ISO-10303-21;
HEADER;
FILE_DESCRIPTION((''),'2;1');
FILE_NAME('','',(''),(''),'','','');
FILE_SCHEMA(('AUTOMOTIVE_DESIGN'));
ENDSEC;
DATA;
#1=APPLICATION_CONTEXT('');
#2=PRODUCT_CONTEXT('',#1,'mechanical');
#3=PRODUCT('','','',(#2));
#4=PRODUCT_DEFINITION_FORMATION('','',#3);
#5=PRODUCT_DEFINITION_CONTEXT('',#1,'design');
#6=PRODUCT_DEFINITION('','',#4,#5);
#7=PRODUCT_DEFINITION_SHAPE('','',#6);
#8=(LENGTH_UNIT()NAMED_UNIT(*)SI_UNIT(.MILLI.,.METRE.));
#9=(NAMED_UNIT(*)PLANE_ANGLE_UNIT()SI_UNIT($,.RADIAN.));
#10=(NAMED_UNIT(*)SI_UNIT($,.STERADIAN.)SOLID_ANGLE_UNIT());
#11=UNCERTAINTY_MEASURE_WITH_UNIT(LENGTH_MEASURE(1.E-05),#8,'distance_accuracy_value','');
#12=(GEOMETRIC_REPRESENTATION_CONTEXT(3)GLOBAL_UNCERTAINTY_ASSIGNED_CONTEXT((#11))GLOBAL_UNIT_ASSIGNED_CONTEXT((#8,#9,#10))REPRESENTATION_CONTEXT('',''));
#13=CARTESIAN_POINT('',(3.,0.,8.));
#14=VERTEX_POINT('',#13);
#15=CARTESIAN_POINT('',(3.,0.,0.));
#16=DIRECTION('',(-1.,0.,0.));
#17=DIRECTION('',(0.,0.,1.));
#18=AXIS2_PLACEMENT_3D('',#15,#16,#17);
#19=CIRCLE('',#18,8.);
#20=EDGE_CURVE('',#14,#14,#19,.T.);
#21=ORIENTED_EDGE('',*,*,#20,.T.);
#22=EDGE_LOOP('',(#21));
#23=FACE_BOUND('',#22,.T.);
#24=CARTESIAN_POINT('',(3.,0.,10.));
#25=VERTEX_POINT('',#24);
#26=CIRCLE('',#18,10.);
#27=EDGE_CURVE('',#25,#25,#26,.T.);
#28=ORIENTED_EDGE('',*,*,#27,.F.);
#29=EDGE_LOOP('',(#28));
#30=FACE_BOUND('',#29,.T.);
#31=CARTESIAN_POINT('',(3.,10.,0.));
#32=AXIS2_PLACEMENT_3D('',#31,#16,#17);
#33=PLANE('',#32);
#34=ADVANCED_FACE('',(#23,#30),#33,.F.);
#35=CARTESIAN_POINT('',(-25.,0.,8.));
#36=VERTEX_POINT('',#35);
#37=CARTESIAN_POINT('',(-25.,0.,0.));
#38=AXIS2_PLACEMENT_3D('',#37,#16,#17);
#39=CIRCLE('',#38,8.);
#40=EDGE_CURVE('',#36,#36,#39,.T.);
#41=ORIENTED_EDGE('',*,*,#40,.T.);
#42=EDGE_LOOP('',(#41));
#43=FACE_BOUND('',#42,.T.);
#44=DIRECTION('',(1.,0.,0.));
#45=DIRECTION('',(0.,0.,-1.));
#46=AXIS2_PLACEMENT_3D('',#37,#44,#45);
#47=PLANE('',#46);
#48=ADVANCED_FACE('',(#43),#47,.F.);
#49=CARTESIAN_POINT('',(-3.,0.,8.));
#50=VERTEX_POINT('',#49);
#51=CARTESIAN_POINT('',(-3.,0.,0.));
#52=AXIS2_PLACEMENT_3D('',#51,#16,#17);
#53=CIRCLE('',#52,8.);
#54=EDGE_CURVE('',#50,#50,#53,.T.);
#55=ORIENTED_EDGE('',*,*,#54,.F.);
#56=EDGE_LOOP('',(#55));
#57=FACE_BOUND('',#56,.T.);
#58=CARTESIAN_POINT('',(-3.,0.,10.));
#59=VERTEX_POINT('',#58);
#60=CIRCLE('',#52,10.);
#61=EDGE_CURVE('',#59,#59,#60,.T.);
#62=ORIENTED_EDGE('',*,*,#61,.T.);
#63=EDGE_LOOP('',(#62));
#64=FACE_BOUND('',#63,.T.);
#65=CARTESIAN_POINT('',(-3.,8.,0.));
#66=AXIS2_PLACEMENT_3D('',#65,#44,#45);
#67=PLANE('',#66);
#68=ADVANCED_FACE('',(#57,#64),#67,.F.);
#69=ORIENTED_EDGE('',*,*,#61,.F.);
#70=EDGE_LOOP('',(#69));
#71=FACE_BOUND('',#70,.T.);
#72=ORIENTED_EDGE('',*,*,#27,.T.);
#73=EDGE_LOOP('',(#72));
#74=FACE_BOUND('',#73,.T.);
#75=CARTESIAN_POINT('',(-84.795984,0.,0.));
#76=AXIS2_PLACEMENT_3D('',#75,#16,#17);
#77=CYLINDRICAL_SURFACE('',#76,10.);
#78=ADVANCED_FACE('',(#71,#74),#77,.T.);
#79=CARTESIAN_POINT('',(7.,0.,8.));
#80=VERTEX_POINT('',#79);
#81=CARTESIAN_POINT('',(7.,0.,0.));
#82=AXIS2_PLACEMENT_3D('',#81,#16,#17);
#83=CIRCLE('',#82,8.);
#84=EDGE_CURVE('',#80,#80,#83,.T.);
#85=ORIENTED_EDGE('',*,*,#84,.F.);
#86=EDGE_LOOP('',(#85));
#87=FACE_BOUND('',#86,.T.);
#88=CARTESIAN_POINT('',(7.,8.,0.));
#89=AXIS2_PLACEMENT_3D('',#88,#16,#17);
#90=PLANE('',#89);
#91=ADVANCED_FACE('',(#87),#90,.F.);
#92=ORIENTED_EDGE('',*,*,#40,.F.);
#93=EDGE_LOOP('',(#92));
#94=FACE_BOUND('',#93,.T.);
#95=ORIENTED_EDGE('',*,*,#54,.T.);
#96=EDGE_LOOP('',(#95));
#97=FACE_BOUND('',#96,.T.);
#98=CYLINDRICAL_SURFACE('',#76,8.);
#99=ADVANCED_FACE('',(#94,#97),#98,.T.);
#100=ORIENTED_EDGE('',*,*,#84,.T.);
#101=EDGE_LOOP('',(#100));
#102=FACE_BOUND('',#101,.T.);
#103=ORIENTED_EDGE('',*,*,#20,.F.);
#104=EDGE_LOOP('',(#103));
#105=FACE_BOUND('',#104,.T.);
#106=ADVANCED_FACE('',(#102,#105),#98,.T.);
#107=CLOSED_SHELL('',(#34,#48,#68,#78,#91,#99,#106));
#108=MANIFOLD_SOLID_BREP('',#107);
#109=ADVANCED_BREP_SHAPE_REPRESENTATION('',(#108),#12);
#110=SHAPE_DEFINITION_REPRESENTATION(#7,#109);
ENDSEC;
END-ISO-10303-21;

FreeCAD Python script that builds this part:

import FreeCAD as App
import Part
import Sketcher

V = App.Vector

doc = App.newDocument("Part")
body = doc.addObject("PartDesign::Body", "Body")

sketch1 = doc.addObject("Sketcher::SketchObject", "Sketch")
body.addObject(sketch1)
sketch1.AttachmentSupport = (doc.XY_Plane, [""])
sketch1.MapMode = "FlatFace"
sketch1.addGeometry([
    Part.LineSegment(V(-25, 8, 0), V(-25, 0, 0)),
    Part.LineSegment(V(-25, 0, 0), V(7, 0, 0)),
    Part.LineSegment(V(7, 0, 0), V(7, 8, 0)),
    Part.LineSegment(V(7, 8, 0), V(3, 8, 0)),
    Part.LineSegment(V(3, 8, 0), V(3, 10, 0)),
    Part.LineSegment(V(3, 10, 0), V(-3, 10, 0)),
    Part.LineSegment(V(-3, 10, 0), V(-3, 8, 0)),
    Part.LineSegment(V(-3, 8, 0), V(-25, 8, 0)),
], False)
sketch1.addConstraint([
    Sketcher.Constraint("Coincident", 0, 2, 1, 1),
    Sketcher.Constraint("Coincident", 1, 2, 2, 1),
    Sketcher.Constraint("Coincident", 2, 2, 3, 1),
    Sketcher.Constraint("Coincident", 3, 2, 4, 1),
    Sketcher.Constraint("Coincident", 4, 2, 5, 1),
    Sketcher.Constraint("Coincident", 5, 2, 6, 1),
    Sketcher.Constraint("Coincident", 6, 2, 7, 1),
    Sketcher.Constraint("Coincident", 7, 2, 0, 1),
    Sketcher.Constraint("Vertical", 0),
    Sketcher.Constraint("Horizontal", 1),
    Sketcher.Constraint("Vertical", 2),
    Sketcher.Constraint("Horizontal", 3),
    Sketcher.Constraint("Vertical", 4),
    Sketcher.Constraint("Horizontal", 5),
    Sketcher.Constraint("Vertical", 6),
    Sketcher.Constraint("Horizontal", 7),
    Sketcher.Constraint("Symmetric", 3, 2, 6, 2, -2),
    Sketcher.Constraint("PointOnObject", 0, 2, -1),
    Sketcher.Constraint("DistanceX", 1, 1, 1, 2, 32.0),
    Sketcher.Constraint("DistanceX", 3, 2, 3, 1, 4.0),
    Sketcher.Constraint("DistanceX", 5, 2, 5, 1, 6.0),
    Sketcher.Constraint("DistanceY", 0, 2, 0, 1, 8.0),
    Sketcher.Constraint("DistanceY", 4, 1, 4, 2, 2.0),
])
revolution = doc.addObject("PartDesign::Revolution", "Revolution")
body.addObject(revolution)
revolution.Profile = sketch1
revolution.ReferenceAxis = (sketch1, ["H_Axis"])
revolution.Angle = 360

doc.recompute()
